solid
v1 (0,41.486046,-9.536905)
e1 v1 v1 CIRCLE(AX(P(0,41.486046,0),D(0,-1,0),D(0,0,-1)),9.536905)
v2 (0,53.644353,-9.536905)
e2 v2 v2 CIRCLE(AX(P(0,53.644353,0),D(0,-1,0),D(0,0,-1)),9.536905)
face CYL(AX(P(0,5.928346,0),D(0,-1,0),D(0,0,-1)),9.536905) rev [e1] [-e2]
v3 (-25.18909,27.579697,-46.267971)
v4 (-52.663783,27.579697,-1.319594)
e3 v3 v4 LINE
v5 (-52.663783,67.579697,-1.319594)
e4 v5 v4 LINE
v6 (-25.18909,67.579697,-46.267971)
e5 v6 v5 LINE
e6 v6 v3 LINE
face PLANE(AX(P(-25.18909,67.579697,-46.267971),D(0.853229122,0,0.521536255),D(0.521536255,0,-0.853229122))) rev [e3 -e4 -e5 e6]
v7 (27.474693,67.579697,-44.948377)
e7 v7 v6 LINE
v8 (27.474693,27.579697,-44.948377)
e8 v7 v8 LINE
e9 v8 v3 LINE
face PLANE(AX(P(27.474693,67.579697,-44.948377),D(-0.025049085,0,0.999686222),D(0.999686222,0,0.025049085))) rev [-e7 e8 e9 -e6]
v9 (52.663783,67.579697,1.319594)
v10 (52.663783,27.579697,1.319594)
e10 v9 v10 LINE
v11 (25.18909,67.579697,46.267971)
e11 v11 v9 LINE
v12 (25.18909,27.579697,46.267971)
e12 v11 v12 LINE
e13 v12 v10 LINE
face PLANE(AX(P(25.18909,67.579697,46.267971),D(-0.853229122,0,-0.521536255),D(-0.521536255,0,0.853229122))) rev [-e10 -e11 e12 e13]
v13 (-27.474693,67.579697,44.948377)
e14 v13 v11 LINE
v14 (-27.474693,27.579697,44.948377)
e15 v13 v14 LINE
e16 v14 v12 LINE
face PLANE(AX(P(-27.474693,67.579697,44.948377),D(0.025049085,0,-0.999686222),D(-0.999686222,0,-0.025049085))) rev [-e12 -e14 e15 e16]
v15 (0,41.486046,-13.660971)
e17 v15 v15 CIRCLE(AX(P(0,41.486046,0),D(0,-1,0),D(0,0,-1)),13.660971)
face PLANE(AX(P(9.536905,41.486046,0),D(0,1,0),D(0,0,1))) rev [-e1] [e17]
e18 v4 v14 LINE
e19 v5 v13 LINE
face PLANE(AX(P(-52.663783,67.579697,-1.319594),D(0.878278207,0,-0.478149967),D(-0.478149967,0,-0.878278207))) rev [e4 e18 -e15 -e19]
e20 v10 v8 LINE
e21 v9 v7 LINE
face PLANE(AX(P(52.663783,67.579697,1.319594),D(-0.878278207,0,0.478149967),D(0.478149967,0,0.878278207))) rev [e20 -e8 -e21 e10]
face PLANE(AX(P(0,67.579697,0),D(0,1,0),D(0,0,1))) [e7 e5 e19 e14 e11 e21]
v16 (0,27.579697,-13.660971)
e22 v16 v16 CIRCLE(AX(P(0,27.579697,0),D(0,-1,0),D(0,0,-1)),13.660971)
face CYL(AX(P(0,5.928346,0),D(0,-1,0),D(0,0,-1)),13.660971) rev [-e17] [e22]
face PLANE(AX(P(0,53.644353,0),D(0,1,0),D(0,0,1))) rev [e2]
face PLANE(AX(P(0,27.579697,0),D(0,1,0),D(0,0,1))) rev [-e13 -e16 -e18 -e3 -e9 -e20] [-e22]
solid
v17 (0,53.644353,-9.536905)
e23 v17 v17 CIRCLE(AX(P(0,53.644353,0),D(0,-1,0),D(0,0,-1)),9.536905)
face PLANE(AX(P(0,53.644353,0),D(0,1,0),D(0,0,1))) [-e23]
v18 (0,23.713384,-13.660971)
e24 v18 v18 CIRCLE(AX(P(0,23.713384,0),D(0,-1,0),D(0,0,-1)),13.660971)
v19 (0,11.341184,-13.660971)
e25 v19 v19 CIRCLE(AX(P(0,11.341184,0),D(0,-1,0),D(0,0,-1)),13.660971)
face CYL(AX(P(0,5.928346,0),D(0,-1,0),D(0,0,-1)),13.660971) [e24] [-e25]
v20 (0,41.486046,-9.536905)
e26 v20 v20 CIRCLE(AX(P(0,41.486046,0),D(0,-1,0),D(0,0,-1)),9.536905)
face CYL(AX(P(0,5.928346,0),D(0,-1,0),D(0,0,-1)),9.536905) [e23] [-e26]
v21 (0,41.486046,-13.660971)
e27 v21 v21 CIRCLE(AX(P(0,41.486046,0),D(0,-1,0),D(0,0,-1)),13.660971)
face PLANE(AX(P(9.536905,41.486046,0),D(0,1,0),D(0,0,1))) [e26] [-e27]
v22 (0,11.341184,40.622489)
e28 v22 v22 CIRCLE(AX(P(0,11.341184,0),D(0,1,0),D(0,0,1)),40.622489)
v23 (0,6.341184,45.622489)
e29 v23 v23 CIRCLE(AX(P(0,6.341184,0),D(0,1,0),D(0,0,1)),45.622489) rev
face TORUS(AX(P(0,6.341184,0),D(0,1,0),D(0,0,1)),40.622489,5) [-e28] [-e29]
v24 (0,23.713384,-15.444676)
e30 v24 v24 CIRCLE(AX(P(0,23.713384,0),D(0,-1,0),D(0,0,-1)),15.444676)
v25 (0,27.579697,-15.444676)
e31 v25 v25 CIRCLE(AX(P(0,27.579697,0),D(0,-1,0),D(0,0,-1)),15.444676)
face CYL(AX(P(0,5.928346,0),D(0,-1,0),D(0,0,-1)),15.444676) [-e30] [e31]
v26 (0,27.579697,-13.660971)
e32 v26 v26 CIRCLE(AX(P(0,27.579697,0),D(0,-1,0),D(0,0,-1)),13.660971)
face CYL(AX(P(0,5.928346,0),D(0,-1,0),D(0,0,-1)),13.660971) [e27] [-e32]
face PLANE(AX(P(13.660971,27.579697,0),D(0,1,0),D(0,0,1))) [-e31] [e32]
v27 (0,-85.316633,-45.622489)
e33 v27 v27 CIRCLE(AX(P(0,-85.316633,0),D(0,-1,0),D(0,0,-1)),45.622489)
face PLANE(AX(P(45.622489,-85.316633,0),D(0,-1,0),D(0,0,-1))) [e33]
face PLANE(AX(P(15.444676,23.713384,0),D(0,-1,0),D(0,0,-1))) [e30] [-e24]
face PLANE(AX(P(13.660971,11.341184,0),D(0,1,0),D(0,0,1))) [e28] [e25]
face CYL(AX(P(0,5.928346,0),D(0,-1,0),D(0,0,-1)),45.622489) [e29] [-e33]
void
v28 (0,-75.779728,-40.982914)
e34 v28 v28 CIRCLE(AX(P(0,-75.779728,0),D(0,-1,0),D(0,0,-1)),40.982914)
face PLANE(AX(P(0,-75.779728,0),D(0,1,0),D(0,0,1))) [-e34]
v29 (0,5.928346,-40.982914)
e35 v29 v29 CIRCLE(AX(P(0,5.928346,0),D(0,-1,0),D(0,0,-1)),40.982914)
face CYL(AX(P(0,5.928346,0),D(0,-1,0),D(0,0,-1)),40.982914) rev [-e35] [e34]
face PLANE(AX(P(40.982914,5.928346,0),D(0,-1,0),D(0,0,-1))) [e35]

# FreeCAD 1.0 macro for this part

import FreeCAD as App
import Part
import Sketcher

V = App.Vector
Q = App.Units.Quantity


def edges_at(feature, points):
    """Names of the edges that pass closest to the given points."""
    edges = feature.Shape.Edges
    near = lambda p: min(range(len(edges)), key=lambda i: edges[i].distToShape(Part.Vertex(*p))[0])
    return sorted({f"Edge{near(p) + 1}" for p in points})

doc = App.newDocument("Part")
params = doc.addObject("Spreadsheet::Sheet", "Params")
for row, (alias, value) in enumerate([
    ("revolution_angle", "360 deg"),
    ("fillet_radius", "5 mm"),
    ("pad1_length", "40 mm"),
    ("groove_angle", "360 deg"),
], start=1):
    params.set(f"A{row}", alias)
    params.set(f"B{row}", "=" + value)
    params.setAlias(f"B{row}", alias)

body = doc.addObject("PartDesign::Body", "Body")

# Sketch on XY plane
sketch1 = doc.addObject("Sketcher::SketchObject", "Sketch")
body.addObject(sketch1)
sketch1.AttachmentSupport = (doc.XY_Plane, [""])
sketch1.MapMode = "FlatFace"
sketch1.addGeometry(Part.LineSegment(V(9.5, 53.6, 0), V(0, 53.6, 0)), False)
sketch1.addGeometry(Part.LineSegment(V(0, 53.6, 0), V(0, 5.9, 0)), False)
sketch1.addGeometry(Part.LineSegment(V(0, 5.9, 0), V(41, 5.9, 0)), False)
sketch1.addGeometry(Part.LineSegment(V(41, 5.9, 0), V(41, -75.8, 0)), False)
sketch1.addGeometry(Part.LineSegment(V(41, -75.8, 0), V(0, -75.8, 0)), False)
sketch1.addGeometry(Part.LineSegment(V(0, -75.8, 0), V(0, -85.3, 0)), False)
sketch1.addGeometry(Part.LineSegment(V(0, -85.3, 0), V(45.6, -85.3, 0)), False)
sketch1.addGeometry(Part.LineSegment(V(45.6, -85.3, 0), V(45.6, 11.3, 0)), False)
sketch1.addGeometry(Part.LineSegment(V(45.6, 11.3, 0), V(13.7, 11.3, 0)), False)
sketch1.addGeometry(Part.LineSegment(V(13.7, 11.3, 0), V(13.7, 23.7, 0)), False)
sketch1.addGeometry(Part.LineSegment(V(13.7, 23.7, 0), V(15.4, 23.7, 0)), False)
sketch1.addGeometry(Part.LineSegment(V(15.4, 23.7, 0), V(15.4, 27.6, 0)), False)
sketch1.addGeometry(Part.LineSegment(V(15.4, 27.6, 0), V(13.7, 27.6, 0)), False)
sketch1.addGeometry(Part.LineSegment(V(13.7, 27.6, 0), V(13.7, 41.5, 0)), False)
sketch1.addGeometry(Part.LineSegment(V(13.7, 41.5, 0), V(9.5, 41.5, 0)), False)
sketch1.addGeometry(Part.LineSegment(V(9.5, 41.5, 0), V(9.5, 53.6, 0)), False)
sketch1.addConstraint(Sketcher.Constraint("Coincident", 0, 2, 1, 1))
sketch1.addConstraint(Sketcher.Constraint("Coincident", 1, 2, 2, 1))
sketch1.addConstraint(Sketcher.Constraint("Coincident", 2, 2, 3, 1))
sketch1.addConstraint(Sketcher.Constraint("Coincident", 3, 2, 4, 1))
sketch1.addConstraint(Sketcher.Constraint("Coincident", 4, 2, 5, 1))
sketch1.addConstraint(Sketcher.Constraint("Coincident", 5, 2, 6, 1))
sketch1.addConstraint(Sketcher.Constraint("Coincident", 6, 2, 7, 1))
sketch1.addConstraint(Sketcher.Constraint("Coincident", 7, 2, 8, 1))
sketch1.addConstraint(Sketcher.Constraint("Coincident", 8, 2, 9, 1))
sketch1.addConstraint(Sketcher.Constraint("Coincident", 9, 2, 10, 1))
sketch1.addConstraint(Sketcher.Constraint("Coincident", 10, 2, 11, 1))
sketch1.addConstraint(Sketcher.Constraint("Coincident", 11, 2, 12, 1))
sketch1.addConstraint(Sketcher.Constraint("Coincident", 12, 2, 13, 1))
sketch1.addConstraint(Sketcher.Constraint("Coincident", 13, 2, 14, 1))
sketch1.addConstraint(Sketcher.Constraint("Coincident", 14, 2, 15, 1))
sketch1.addConstraint(Sketcher.Constraint("Coincident", 15, 2, 0, 1))
sketch1.addConstraint(Sketcher.Constraint("Horizontal", 0))
sketch1.addConstraint(Sketcher.Constraint("Vertical", 1))
sketch1.addConstraint(Sketcher.Constraint("Horizontal", 2))
sketch1.addConstraint(Sketcher.Constraint("Vertical", 3))
sketch1.addConstraint(Sketcher.Constraint("Horizontal", 4))
sketch1.addConstraint(Sketcher.Constraint("Vertical", 5))
sketch1.addConstraint(Sketcher.Constraint("Horizontal", 6))
sketch1.addConstraint(Sketcher.Constraint("Vertical", 7))
sketch1.addConstraint(Sketcher.Constraint("Horizontal", 8))
sketch1.addConstraint(Sketcher.Constraint("Vertical", 9))
sketch1.addConstraint(Sketcher.Constraint("Horizontal", 10))
sketch1.addConstraint(Sketcher.Constraint("Vertical", 11))
sketch1.addConstraint(Sketcher.Constraint("Horizontal", 12))
sketch1.addConstraint(Sketcher.Constraint("Vertical", 13))
sketch1.addConstraint(Sketcher.Constraint("Horizontal", 14))
sketch1.addConstraint(Sketcher.Constraint("Vertical", 15))
sketch1.addConstraint(Sketcher.Constraint("PointOnObject", 0, 2, -2))
sketch1.addConstraint(Sketcher.Constraint("PointOnObject", 4, 2, -2))
sketch1.addConstraint(Sketcher.Constraint("Vertical", 9, 2, 12, 2))
sketch1.addConstraint(Sketcher.Constraint("Equal", 0, 5))
sketch1.addConstraint(Sketcher.Constraint("DistanceY", 9, 1, 9, 2, Q("12.3722 mm")))
sketch1.addConstraint(Sketcher.Constraint("DistanceX", 6, 1, 6, 2, Q("45.622489 mm")))
sketch1.addConstraint(Sketcher.Constraint("DistanceY", 13, 1, 13, 2, Q("13.906349 mm")))
sketch1.addConstraint(Sketcher.Constraint("DistanceX", 0, 2, 0, 1, Q("9.536905 mm")))
sketch1.addConstraint(Sketcher.Constraint("DistanceX", 2, 1, 2, 2, Q("40.982914 mm")))
sketch1.addConstraint(Sketcher.Constraint("DistanceX", 8, 2, 8, 1, Q("31.961518 mm")))
sketch1.addConstraint(Sketcher.Constraint("DistanceX", 10, 1, 10, 2, Q("1.783705 mm")))
sketch1.addConstraint(Sketcher.Constraint("DistanceY", 1, 2, 1, 1, Q("47.716007 mm")))
sketch1.addConstraint(Sketcher.Constraint("DistanceY", 3, 2, 3, 1, Q("81.708074 mm")))
sketch1.addConstraint(Sketcher.Constraint("DistanceY", 7, 1, 7, 2, Q("96.657816 mm")))
sketch1.addConstraint(Sketcher.Constraint("DistanceY", 11, 1, 11, 2, Q("3.866313 mm")))
sketch1.addConstraint(Sketcher.Constraint("DistanceY", 3, 2, -1, 1, Q("75.779728 mm")))
revolution = doc.addObject("PartDesign::Revolution", "Revolution")
body.addObject(revolution)
revolution.Profile = sketch1
revolution.ReferenceAxis = (sketch1, ["V_Axis"])
revolution.setExpression("Angle", "Params.revolution_angle")
doc.recompute()

fillet = doc.addObject("PartDesign::Fillet", "Fillet")
body.addObject(fillet)
fillet.Base = (revolution, edges_at(revolution, [(0, 11.341, 45.622)]))
fillet.setExpression("Radius", "Params.fillet_radius")
body2 = doc.addObject("PartDesign::Body", "Body001")

# Sketch on XZ plane
sketch2 = doc.addObject("Sketcher::SketchObject", "Sketch001")
body2.addObject(sketch2)
sketch2.AttachmentSupport = (doc.getObject("XZ_Plane001"), [""])
sketch2.MapMode = "FlatFace"
sketch2.AttachmentOffset = App.Placement(V(0, 0, -27.579697), App.Rotation())
sketch2.addGeometry(Part.LineSegment(V(53, 1, 0), V(27, -45, 0)), False)
sketch2.addGeometry(Part.LineSegment(V(27, -45, 0), V(-25, -46, 0)), False)
sketch2.addGeometry(Part.LineSegment(V(-25, -46, 0), V(-53, -1, 0)), False)
sketch2.addGeometry(Part.LineSegment(V(-53, -1, 0), V(-27, 45, 0)), False)
sketch2.addGeometry(Part.LineSegment(V(-27, 45, 0), V(25, 46, 0)), False)
sketch2.addGeometry(Part.LineSegment(V(25, 46, 0), V(53, 1, 0)), False)
sketch2.addConstraint(Sketcher.Constraint("Coincident", 0, 2, 1, 1))
sketch2.addConstraint(Sketcher.Constraint("Coincident", 1, 2, 2, 1))
sketch2.addConstraint(Sketcher.Constraint("Coincident", 2, 2, 3, 1))
sketch2.addConstraint(Sketcher.Constraint("Coincident", 3, 2, 4, 1))
sketch2.addConstraint(Sketcher.Constraint("Coincident", 4, 2, 5, 1))
sketch2.addConstraint(Sketcher.Constraint("Coincident", 5, 2, 0, 1))
sketch2.addConstraint(Sketcher.Constraint("Symmetric", 0, 2, 3, 2, -1, 1))
sketch2.addConstraint(Sketcher.Constraint("Symmetric", 1, 2, 4, 2, -1, 1))
sketch2.addConstraint(Sketcher.Constraint("Symmetric", 2, 2, 5, 2, -1, 1))
sketch2.addConstraint(Sketcher.Constraint("Equal", 0, 1))
sketch2.addConstraint(Sketcher.Constraint("Equal", 1, 2))
sketch2.addConstraint(Sketcher.Constraint("DistanceX", 1, 2, -1, 1, Q("25.18909 mm")))
sketch2.addConstraint(Sketcher.Constraint("DistanceY", 1, 2, -1, 1, Q("46.267971 mm")))
sketch2.addConstraint(Sketcher.Constraint("DistanceX", 2, 2, 3, 2, Q("25.18909 mm")))
sketch2.addConstraint(Sketcher.Constraint("DistanceY", 2, 2, 3, 2, Q("46.267971 mm")))
pad1 = doc.addObject("PartDesign::Pad", "Pad")
body2.addObject(pad1)
pad1.Profile = sketch2
pad1.setExpression("Length", "Params.pad1_length")
pad1.Reversed = True

# Sketch on XY plane
sketch3 = doc.addObject("Sketcher::SketchObject", "Sketch002")
body2.addObject(sketch3)
sketch3.AttachmentSupport = (doc.getObject("XY_Plane001"), [""])
sketch3.MapMode = "FlatFace"
sketch3.addGeometry(Part.LineSegment(V(9.5, 53.6, 0), V(0, 53.6, 0)), False)
sketch3.addGeometry(Part.LineSegment(V(0, 53.6, 0), V(0, 5.9, 0)), False)
sketch3.addGeometry(Part.LineSegment(V(0, 5.9, 0), V(41, 5.9, 0)), False)
sketch3.addGeometry(Part.LineSegment(V(41, 5.9, 0), V(41, -75.8, 0)), False)
sketch3.addGeometry(Part.LineSegment(V(41, -75.8, 0), V(0, -75.8, 0)), False)
sketch3.addGeometry(Part.LineSegment(V(0, -75.8, 0), V(0, -85.3, 0)), False)
sketch3.addGeometry(Part.LineSegment(V(0, -85.3, 0), V(45.6, -85.3, 0)), False)
sketch3.addGeometry(Part.LineSegment(V(45.6, -85.3, 0), V(45.6, 11.3, 0)), False)
sketch3.addGeometry(Part.LineSegment(V(45.6, 11.3, 0), V(13.7, 11.3, 0)), False)
sketch3.addGeometry(Part.LineSegment(V(13.7, 11.3, 0), V(13.7, 23.7, 0)), False)
sketch3.addGeometry(Part.LineSegment(V(13.7, 23.7, 0), V(15.4, 23.7, 0)), False)
sketch3.addGeometry(Part.LineSegment(V(15.4, 23.7, 0), V(15.4, 27.6, 0)), False)
sketch3.addGeometry(Part.LineSegment(V(15.4, 27.6, 0), V(13.7, 27.6, 0)), False)
sketch3.addGeometry(Part.LineSegment(V(13.7, 27.6, 0), V(13.7, 41.5, 0)), False)
sketch3.addGeometry(Part.LineSegment(V(13.7, 41.5, 0), V(9.5, 41.5, 0)), False)
sketch3.addGeometry(Part.LineSegment(V(9.5, 41.5, 0), V(9.5, 53.6, 0)), False)
sketch3.addConstraint(Sketcher.Constraint("Coincident", 0, 2, 1, 1))
sketch3.addConstraint(Sketcher.Constraint("Coincident", 1, 2, 2, 1))
sketch3.addConstraint(Sketcher.Constraint("Coincident", 2, 2, 3, 1))
sketch3.addConstraint(Sketcher.Constraint("Coincident", 3, 2, 4, 1))
sketch3.addConstraint(Sketcher.Constraint("Coincident", 4, 2, 5, 1))
sketch3.addConstraint(Sketcher.Constraint("Coincident", 5, 2, 6, 1))
sketch3.addConstraint(Sketcher.Constraint("Coincident", 6, 2, 7, 1))
sketch3.addConstraint(Sketcher.Constraint("Coincident", 7, 2, 8, 1))
sketch3.addConstraint(Sketcher.Constraint("Coincident", 8, 2, 9, 1))
sketch3.addConstraint(Sketcher.Constraint("Coincident", 9, 2, 10, 1))
sketch3.addConstraint(Sketcher.Constraint("Coincident", 10, 2, 11, 1))
sketch3.addConstraint(Sketcher.Constraint("Coincident", 11, 2, 12, 1))
sketch3.addConstraint(Sketcher.Constraint("Coincident", 12, 2, 13, 1))
sketch3.addConstraint(Sketcher.Constraint("Coincident", 13, 2, 14, 1))
sketch3.addConstraint(Sketcher.Constraint("Coincident", 14, 2, 15, 1))
sketch3.addConstraint(Sketcher.Constraint("Coincident", 15, 2, 0, 1))
sketch3.addConstraint(Sketcher.Constraint("Horizontal", 0))
sketch3.addConstraint(Sketcher.Constraint("Vertical", 1))
sketch3.addConstraint(Sketcher.Constraint("Horizontal", 2))
sketch3.addConstraint(Sketcher.Constraint("Vertical", 3))
sketch3.addConstraint(Sketcher.Constraint("Horizontal", 4))
sketch3.addConstraint(Sketcher.Constraint("Vertical", 5))
sketch3.addConstraint(Sketcher.Constraint("Horizontal", 6))
sketch3.addConstraint(Sketcher.Constraint("Vertical", 7))
sketch3.addConstraint(Sketcher.Constraint("Horizontal", 8))
sketch3.addConstraint(Sketcher.Constraint("Vertical", 9))
sketch3.addConstraint(Sketcher.Constraint("Horizontal", 10))
sketch3.addConstraint(Sketcher.Constraint("Vertical", 11))
sketch3.addConstraint(Sketcher.Constraint("Horizontal", 12))
sketch3.addConstraint(Sketcher.Constraint("Vertical", 13))
sketch3.addConstraint(Sketcher.Constraint("Horizontal", 14))
sketch3.addConstraint(Sketcher.Constraint("Vertical", 15))
sketch3.addConstraint(Sketcher.Constraint("PointOnObject", 0, 2, -2))
sketch3.addConstraint(Sketcher.Constraint("PointOnObject", 4, 2, -2))
sketch3.addConstraint(Sketcher.Constraint("Vertical", 9, 2, 12, 2))
sketch3.addConstraint(Sketcher.Constraint("Equal", 0, 5))
sketch3.addConstraint(Sketcher.Constraint("DistanceY", 9, 1, 9, 2, Q("12.3722 mm")))
sketch3.addConstraint(Sketcher.Constraint("DistanceX", 6, 1, 6, 2, Q("45.622489 mm")))
sketch3.addConstraint(Sketcher.Constraint("DistanceY", 13, 1, 13, 2, Q("13.906349 mm")))
sketch3.addConstraint(Sketcher.Constraint("DistanceX", 0, 2, 0, 1, Q("9.536905 mm")))
sketch3.addConstraint(Sketcher.Constraint("DistanceX", 2, 1, 2, 2, Q("40.982914 mm")))
sketch3.addConstraint(Sketcher.Constraint("DistanceX", 8, 2, 8, 1, Q("31.961518 mm")))
sketch3.addConstraint(Sketcher.Constraint("DistanceX", 10, 1, 10, 2, Q("1.783705 mm")))
sketch3.addConstraint(Sketcher.Constraint("DistanceY", 1, 2, 1, 1, Q("47.716007 mm")))
sketch3.addConstraint(Sketcher.Constraint("DistanceY", 3, 2, 3, 1, Q("81.708074 mm")))
sketch3.addConstraint(Sketcher.Constraint("DistanceY", 7, 1, 7, 2, Q("96.657816 mm")))
sketch3.addConstraint(Sketcher.Constraint("DistanceY", 11, 1, 11, 2, Q("3.866313 mm")))
sketch3.addConstraint(Sketcher.Constraint("DistanceY", 3, 2, -1, 1, Q("75.779728 mm")))
groove = doc.addObject("PartDesign::Groove", "Groove")
body2.addObject(groove)
groove.Profile = sketch3
groove.ReferenceAxis = (sketch3, ["V_Axis"])
groove.setExpression("Angle", "Params.groove_angle")

doc.recompute()
